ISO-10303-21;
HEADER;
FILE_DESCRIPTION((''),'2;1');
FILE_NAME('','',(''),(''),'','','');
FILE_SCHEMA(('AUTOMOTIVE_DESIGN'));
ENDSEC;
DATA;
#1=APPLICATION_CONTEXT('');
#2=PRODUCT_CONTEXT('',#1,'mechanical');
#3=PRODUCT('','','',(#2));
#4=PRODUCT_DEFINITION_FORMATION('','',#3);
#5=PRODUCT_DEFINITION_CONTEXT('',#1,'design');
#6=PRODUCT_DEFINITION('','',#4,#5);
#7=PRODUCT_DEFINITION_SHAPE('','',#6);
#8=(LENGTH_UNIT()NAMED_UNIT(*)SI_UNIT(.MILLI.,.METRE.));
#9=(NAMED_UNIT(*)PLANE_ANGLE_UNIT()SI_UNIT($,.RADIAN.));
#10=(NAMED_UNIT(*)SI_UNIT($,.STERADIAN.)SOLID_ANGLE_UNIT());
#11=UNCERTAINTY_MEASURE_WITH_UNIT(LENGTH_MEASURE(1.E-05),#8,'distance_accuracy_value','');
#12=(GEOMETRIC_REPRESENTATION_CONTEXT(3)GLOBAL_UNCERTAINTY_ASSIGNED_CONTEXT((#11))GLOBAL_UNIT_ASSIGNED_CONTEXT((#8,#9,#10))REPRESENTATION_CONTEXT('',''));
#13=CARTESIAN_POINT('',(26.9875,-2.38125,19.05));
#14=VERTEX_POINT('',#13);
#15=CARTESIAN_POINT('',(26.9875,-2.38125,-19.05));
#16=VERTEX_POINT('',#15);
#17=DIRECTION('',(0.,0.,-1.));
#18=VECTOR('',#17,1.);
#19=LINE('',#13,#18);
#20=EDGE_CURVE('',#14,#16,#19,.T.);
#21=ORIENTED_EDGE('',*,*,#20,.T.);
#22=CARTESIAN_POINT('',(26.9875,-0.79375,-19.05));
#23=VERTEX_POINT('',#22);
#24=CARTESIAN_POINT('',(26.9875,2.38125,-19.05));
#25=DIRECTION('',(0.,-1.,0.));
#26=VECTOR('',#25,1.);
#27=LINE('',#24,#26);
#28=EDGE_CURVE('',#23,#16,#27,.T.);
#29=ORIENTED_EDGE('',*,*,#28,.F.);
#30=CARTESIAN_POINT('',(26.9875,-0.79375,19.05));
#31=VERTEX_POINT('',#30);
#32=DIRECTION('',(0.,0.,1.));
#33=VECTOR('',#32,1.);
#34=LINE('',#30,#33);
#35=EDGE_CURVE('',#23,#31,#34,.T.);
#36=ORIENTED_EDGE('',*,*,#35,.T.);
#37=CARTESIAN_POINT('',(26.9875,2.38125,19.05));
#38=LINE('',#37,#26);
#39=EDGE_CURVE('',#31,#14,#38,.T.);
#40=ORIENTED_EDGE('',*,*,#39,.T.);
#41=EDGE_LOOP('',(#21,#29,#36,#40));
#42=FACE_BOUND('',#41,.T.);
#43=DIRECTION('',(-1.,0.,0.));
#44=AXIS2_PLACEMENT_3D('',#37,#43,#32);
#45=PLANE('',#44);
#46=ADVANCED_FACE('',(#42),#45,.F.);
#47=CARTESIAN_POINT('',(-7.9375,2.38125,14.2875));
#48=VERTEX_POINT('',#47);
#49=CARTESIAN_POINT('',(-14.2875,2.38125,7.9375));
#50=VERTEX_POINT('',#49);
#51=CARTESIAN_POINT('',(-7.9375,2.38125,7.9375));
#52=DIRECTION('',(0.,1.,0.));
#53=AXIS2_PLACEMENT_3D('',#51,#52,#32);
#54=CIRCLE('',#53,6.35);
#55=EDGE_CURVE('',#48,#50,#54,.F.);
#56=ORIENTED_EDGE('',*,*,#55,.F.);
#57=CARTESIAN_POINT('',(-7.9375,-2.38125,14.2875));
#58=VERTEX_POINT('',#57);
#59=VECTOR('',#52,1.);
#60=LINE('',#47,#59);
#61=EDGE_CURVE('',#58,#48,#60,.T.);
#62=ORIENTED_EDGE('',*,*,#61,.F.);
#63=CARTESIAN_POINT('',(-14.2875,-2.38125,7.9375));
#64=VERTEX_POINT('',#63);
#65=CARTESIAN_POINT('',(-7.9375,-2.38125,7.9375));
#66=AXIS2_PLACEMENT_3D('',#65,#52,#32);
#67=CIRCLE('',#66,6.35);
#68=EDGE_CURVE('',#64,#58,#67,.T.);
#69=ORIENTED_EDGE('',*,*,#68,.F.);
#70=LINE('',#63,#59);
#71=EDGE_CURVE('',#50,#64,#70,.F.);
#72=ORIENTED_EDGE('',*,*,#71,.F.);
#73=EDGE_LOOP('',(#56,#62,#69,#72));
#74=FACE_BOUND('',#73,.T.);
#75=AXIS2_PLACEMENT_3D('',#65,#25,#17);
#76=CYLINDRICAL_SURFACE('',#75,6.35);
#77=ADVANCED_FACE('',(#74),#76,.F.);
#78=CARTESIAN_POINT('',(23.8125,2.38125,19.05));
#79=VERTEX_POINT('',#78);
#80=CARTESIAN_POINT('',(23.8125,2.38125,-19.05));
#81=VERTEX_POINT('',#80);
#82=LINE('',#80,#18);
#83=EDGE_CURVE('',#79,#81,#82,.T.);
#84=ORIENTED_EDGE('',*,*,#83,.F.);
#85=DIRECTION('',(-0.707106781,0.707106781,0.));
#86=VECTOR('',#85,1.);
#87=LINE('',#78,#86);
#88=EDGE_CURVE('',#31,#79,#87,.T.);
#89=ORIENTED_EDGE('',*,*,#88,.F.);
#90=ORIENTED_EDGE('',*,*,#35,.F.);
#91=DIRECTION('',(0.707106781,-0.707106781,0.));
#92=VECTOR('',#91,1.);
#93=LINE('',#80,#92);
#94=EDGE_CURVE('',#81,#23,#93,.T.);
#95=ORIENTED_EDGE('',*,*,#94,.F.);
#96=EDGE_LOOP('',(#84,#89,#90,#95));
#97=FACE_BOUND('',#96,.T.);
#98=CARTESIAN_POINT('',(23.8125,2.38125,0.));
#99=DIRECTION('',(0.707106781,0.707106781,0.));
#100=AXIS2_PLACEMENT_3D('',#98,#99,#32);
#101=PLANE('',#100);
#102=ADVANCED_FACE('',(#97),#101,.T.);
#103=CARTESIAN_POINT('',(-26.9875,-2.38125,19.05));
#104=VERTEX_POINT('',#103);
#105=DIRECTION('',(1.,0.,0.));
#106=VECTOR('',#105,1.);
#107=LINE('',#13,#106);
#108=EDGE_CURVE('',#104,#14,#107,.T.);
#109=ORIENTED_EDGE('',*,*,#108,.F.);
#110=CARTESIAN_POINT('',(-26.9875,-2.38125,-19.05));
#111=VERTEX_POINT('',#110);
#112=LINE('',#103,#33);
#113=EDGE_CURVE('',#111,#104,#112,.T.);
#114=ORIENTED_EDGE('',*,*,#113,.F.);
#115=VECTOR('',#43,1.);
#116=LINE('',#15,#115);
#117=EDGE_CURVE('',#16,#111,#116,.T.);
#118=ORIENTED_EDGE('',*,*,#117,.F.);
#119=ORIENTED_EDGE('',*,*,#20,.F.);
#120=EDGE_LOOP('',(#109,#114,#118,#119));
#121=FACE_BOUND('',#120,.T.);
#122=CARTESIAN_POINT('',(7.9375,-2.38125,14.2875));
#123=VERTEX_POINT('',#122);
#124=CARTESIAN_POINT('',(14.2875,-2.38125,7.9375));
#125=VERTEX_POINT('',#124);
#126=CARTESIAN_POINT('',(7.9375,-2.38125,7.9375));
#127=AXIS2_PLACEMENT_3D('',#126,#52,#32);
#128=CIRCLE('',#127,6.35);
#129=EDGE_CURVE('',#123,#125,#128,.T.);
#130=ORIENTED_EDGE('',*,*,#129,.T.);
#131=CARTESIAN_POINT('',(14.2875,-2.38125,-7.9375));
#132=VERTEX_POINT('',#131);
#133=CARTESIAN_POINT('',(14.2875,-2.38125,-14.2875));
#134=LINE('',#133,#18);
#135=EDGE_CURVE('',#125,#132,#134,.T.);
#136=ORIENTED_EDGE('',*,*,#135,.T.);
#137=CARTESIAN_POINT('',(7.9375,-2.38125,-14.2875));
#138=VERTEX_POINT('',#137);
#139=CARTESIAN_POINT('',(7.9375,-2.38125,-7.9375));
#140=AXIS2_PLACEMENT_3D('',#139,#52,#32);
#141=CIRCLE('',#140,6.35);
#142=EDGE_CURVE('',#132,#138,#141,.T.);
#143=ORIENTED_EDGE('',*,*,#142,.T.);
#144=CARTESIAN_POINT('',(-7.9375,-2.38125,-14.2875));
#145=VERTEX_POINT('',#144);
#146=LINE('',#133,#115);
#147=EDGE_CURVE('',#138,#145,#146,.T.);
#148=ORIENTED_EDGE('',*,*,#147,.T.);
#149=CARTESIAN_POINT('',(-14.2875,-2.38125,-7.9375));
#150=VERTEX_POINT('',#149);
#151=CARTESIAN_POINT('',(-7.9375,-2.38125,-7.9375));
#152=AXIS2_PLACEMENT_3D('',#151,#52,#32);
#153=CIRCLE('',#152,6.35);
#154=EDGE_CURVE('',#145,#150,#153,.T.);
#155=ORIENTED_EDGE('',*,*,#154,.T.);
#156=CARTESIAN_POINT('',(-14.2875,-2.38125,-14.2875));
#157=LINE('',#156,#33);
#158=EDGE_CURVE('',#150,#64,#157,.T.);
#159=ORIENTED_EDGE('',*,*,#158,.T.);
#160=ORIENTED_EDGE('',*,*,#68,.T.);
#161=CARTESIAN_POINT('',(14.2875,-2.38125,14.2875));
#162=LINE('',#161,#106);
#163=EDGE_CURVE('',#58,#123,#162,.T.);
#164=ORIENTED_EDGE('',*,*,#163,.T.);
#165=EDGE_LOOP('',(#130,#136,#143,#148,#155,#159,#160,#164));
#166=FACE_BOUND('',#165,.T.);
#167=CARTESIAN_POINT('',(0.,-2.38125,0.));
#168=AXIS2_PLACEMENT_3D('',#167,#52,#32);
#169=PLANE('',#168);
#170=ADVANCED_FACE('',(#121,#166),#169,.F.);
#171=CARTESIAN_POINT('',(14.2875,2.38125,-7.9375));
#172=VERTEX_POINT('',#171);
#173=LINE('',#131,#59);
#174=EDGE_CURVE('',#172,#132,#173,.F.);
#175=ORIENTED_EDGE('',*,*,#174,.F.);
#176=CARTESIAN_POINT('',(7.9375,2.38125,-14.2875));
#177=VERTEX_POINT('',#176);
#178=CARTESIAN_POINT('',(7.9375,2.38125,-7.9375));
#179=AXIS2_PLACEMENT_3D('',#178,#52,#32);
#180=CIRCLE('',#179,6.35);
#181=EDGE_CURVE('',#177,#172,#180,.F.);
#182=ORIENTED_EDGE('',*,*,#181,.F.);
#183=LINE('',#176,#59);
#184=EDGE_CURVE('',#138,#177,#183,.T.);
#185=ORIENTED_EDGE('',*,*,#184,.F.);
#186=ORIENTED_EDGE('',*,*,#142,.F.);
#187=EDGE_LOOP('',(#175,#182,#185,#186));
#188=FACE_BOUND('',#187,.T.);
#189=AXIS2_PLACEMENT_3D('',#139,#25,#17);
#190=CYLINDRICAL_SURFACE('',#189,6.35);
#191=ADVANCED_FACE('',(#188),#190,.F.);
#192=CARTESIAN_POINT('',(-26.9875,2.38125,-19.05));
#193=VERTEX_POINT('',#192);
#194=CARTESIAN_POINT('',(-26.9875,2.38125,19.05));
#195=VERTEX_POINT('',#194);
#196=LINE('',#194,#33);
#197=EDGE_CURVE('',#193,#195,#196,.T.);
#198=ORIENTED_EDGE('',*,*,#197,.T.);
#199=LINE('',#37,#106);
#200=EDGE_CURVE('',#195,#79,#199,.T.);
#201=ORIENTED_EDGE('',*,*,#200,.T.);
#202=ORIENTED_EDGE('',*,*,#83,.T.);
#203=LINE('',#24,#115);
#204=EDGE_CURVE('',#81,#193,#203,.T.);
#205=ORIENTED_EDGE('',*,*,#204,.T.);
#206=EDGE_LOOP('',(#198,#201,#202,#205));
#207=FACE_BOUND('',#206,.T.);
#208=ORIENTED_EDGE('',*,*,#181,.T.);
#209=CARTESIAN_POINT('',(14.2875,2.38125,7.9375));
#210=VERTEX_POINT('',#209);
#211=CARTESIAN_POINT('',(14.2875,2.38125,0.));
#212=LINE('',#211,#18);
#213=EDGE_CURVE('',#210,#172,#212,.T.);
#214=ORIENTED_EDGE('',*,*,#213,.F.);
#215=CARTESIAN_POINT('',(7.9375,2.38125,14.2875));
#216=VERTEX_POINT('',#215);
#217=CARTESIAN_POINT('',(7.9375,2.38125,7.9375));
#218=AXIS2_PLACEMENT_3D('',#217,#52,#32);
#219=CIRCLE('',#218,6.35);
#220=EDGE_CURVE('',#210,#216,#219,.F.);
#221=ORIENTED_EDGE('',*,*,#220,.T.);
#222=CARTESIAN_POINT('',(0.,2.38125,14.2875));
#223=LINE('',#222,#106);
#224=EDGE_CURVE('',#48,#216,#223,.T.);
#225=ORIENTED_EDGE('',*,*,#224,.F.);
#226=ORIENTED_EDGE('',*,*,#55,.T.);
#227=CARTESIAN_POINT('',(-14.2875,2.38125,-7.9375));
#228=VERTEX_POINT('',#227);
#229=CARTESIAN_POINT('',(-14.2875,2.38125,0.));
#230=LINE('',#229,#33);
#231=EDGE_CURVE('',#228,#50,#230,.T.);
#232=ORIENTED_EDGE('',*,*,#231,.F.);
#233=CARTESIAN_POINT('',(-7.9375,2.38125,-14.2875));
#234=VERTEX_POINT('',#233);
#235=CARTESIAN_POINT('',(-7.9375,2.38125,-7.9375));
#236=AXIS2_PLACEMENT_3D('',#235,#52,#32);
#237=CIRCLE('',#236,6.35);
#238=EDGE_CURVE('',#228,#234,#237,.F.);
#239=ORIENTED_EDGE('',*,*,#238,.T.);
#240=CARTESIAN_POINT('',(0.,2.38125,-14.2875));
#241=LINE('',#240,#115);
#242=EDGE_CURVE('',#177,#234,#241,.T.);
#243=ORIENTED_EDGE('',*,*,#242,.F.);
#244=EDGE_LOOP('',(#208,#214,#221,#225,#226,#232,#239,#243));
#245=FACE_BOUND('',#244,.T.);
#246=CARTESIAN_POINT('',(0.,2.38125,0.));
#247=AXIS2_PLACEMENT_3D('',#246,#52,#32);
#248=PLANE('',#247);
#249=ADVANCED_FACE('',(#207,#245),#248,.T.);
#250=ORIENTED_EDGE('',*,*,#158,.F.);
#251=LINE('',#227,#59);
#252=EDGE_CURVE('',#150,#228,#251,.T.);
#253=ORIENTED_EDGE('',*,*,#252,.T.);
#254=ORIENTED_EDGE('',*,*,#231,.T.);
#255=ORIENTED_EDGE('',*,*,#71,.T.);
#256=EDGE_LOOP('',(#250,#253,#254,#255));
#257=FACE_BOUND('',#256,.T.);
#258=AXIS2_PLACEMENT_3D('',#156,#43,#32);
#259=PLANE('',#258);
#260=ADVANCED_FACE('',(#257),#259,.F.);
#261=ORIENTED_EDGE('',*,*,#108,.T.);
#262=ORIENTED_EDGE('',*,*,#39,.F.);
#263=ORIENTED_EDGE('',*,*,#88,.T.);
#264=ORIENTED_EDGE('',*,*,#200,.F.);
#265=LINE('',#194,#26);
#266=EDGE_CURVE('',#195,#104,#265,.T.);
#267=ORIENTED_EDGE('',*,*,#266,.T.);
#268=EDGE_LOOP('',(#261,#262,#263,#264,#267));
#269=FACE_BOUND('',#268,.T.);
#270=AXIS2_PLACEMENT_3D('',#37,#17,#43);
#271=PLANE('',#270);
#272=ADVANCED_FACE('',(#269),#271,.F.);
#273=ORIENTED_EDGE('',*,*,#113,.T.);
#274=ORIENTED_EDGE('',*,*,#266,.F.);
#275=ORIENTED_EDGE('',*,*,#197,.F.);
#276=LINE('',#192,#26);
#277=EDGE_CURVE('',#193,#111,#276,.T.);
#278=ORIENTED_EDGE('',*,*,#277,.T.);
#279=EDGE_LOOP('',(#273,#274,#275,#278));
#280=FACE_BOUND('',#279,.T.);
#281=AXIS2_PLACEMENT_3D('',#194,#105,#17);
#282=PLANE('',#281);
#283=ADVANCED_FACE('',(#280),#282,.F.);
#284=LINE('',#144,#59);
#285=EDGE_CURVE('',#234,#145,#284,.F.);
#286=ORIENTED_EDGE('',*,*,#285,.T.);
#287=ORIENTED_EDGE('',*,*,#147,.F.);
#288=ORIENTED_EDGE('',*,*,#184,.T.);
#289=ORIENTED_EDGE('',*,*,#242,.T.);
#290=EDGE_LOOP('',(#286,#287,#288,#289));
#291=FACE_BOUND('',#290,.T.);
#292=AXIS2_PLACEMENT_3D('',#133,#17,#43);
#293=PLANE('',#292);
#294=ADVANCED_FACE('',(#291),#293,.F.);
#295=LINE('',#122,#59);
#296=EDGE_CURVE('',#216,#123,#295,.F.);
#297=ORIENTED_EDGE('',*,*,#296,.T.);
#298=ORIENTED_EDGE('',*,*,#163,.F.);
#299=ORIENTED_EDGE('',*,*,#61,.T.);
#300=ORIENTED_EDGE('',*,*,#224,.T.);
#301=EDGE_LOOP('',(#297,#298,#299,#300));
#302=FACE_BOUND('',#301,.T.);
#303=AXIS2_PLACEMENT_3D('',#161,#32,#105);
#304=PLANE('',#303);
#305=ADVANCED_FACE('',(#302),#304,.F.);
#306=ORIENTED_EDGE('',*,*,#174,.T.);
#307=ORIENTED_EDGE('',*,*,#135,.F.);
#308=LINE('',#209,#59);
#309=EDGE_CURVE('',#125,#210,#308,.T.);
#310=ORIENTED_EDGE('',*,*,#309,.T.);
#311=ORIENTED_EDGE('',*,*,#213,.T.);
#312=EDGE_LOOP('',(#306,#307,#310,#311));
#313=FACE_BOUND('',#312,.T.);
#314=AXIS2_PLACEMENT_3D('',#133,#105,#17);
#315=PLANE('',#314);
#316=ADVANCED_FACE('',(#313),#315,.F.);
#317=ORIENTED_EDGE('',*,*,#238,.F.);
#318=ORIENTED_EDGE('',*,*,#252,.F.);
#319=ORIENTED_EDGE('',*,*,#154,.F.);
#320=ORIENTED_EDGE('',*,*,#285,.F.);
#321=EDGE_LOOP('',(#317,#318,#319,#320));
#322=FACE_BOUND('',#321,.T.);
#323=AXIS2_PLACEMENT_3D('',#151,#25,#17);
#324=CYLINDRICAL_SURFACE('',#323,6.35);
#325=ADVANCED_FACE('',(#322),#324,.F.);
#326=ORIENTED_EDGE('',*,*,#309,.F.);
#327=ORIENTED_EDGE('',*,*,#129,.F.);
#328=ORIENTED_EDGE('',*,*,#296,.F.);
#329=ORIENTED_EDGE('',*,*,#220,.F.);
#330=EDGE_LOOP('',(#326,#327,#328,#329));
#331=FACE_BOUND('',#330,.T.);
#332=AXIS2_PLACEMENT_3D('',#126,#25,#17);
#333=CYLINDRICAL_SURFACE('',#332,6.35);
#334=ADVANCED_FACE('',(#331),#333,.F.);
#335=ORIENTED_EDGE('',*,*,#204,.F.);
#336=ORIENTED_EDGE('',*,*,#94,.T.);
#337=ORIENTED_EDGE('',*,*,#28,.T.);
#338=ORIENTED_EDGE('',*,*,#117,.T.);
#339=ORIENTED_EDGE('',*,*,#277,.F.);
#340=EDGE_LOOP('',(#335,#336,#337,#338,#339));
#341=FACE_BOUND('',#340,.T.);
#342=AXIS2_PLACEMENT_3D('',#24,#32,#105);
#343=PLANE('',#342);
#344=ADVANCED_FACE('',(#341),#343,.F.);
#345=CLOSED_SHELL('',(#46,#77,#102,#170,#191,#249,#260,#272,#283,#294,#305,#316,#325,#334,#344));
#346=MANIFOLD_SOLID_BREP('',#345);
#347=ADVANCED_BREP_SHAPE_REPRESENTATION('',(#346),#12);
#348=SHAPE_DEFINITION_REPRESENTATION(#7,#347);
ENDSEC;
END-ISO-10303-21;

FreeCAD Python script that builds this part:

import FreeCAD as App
import Part
import Sketcher
Q = App.Units.Quantity


def edges_at(feature, points):
    """Names of the edges that pass closest to the given points."""
    edges = feature.Shape.Edges
    near = lambda p: min(range(len(edges)), key=lambda i: edges[i].distToShape(Part.Vertex(*p))[0])
    return sorted({f"Edge{near(p) + 1}" for p in points})


def add_polygon(sketch, points):
    """Adds a closed chain of lines whose ends are joined by coincident constraints."""
    first, n = sketch.GeometryCount, len(points)
    for a, b in zip(points, points[1:] + points[:1]):
        sketch.addGeometry(Part.LineSegment(App.Vector(*a, 0), App.Vector(*b, 0)), False)
    for i in range(n):
        sketch.addConstraint(Sketcher.Constraint("Coincident", first + i, 2, first + (i + 1) % n, 1))

doc = App.newDocument("Part")
body = doc.addObject("PartDesign::Body", "Body")

sketch1 = body.newObject("Sketcher::SketchObject", "Sketch")
sketch1.AttachmentSupport = (doc.getObject("XZ_Plane"), [""])
sketch1.MapMode = "FlatFace"
add_polygon(sketch1, [(-27, -19), (-27, 19), (27, 19), (27, -19)])
sketch1.addConstraint([
    Sketcher.Constraint("Vertical", 0),
    Sketcher.Constraint("Horizontal", 1),
    Sketcher.Constraint("Vertical", 2),
    Sketcher.Constraint("Horizontal", 3),
    Sketcher.Constraint("Symmetric", 0, 2, 2, 2, -1, 1),
    Sketcher.Constraint("DistanceY", 0, 1, 0, 2, Q("1.5 in")),
    Sketcher.Constraint("DistanceX", 1, 1, 1, 2, Q("2.125 in")),
])
pad1 = body.newObject("PartDesign::Pad", "Pad")
pad1.Profile = sketch1
pad1.Length = Q("0.1875 in")
pad1.Midplane = True
doc.recompute()

chamfer = body.newObject("PartDesign::Chamfer", "Chamfer")
chamfer.Base = (pad1, edges_at(pad1, [(26.988, 2.381, 0)]))
chamfer.Size = Q("0.125 in")

sketch2 = body.newObject("Sketcher::SketchObject", "Sketch001")
sketch2.AttachmentSupport = (doc.getObject("XZ_Plane"), [""])
sketch2.MapMode = "FlatFace"
sketch2.AttachmentOffset = App.Placement(App.Vector(0, 0, -0.09375 * 25.4), App.Rotation())
add_polygon(sketch2, [(-14, -14), (-14, 14), (14, 14), (14, -14)])
sketch2.addConstraint([
    Sketcher.Constraint("Vertical", 0),
    Sketcher.Constraint("Horizontal", 1),
    Sketcher.Constraint("Vertical", 2),
    Sketcher.Constraint("Horizontal", 3),
    Sketcher.Constraint("Symmetric", 0, 2, 2, 2, -1, 1),
    Sketcher.Constraint("Equal", 3, 0),
    Sketcher.Constraint("DistanceX", 1, 1, 1, 2, Q("1.125 in")),
])
pocket1 = body.newObject("PartDesign::Pocket", "Pocket")
pocket1.Profile = sketch2
pocket1.Type = "ThroughAll"
pocket1.Midplane = True
doc.recompute()

fillet = body.newObject("PartDesign::Fillet", "Fillet")
fillet.Base = (pocket1, edges_at(pocket1, [
    (-14.287, 0, 14.287),
    (-14.287, 0, -14.287),
    (14.287, 0, -14.287),
    (14.287, 0, 14.287),
]))
fillet.Radius = Q("0.25 in")

doc.recompute()
